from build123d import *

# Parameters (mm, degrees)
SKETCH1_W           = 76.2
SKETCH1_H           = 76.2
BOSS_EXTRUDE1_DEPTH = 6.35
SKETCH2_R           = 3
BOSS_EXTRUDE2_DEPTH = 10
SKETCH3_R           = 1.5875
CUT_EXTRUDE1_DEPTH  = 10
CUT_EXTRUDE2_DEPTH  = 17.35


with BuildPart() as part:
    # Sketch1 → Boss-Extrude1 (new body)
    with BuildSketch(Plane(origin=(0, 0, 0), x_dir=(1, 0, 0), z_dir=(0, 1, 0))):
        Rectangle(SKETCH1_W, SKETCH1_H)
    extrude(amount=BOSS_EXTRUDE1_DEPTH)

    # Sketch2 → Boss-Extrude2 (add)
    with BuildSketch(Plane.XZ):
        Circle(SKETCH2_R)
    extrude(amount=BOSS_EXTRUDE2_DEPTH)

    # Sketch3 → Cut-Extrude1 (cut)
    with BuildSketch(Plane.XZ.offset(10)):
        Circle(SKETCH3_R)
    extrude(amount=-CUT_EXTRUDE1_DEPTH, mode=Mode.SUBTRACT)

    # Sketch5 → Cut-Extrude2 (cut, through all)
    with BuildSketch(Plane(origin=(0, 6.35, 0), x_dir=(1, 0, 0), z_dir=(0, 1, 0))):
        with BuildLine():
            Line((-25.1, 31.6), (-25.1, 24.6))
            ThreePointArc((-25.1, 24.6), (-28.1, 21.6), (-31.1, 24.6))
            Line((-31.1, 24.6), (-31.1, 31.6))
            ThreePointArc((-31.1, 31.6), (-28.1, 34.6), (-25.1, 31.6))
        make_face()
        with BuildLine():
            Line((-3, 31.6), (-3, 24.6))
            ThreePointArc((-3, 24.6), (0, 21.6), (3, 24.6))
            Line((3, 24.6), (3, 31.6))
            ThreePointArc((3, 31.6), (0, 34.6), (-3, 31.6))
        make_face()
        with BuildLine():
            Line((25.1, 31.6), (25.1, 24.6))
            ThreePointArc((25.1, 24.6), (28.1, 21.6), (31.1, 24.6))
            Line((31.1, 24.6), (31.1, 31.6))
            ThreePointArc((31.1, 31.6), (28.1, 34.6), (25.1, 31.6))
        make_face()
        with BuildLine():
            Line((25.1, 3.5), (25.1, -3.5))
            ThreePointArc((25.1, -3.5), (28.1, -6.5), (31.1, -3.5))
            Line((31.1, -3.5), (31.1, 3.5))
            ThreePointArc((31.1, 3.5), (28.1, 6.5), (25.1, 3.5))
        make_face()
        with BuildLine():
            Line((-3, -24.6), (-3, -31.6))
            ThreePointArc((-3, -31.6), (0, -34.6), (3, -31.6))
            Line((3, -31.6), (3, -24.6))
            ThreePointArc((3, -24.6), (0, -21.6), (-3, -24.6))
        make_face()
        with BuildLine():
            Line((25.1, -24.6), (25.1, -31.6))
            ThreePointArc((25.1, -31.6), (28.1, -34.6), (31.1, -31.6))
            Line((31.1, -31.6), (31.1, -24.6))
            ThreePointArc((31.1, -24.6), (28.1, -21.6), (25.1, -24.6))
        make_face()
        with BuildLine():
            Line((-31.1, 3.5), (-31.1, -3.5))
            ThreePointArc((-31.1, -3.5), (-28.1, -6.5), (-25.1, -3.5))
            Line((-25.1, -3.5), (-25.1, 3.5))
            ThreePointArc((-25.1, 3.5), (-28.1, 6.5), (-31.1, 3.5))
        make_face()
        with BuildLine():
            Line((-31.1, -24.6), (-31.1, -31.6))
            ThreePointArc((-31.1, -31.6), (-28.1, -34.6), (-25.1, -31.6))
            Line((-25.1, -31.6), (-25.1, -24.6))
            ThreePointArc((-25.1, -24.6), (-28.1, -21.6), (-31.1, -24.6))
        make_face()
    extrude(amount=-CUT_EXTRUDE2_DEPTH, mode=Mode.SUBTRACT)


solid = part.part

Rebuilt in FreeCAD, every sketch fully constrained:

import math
import FreeCAD as App
import Part
import Sketcher

doc = App.newDocument("Part")
body = doc.addObject("PartDesign::Body", "Body")

# Sketch on XZ plane
sketch1 = body.newObject("Sketcher::SketchObject", "Sketch")
sketch1.AttachmentSupport = (doc.getObject("XZ_Plane"), [""])
sketch1.MapMode = "FlatFace"
sketch1.addGeometry([
    Part.LineSegment(App.Vector(-38, -38, 0), App.Vector(-38, 38, 0)),
    Part.LineSegment(App.Vector(-38, 38, 0), App.Vector(38, 38, 0)),
    Part.LineSegment(App.Vector(38, 38, 0), App.Vector(38, -38, 0)),
    Part.LineSegment(App.Vector(38, -38, 0), App.Vector(-38, -38, 0)),
], False)
sketch1.addConstraint([
    Sketcher.Constraint("Coincident", 0, 2, 1, 1),
    Sketcher.Constraint("Coincident", 1, 2, 2, 1),
    Sketcher.Constraint("Coincident", 2, 2, 3, 1),
    Sketcher.Constraint("Coincident", 3, 2, 0, 1),
    Sketcher.Constraint("Vertical", 0),
    Sketcher.Constraint("Horizontal", 1),
    Sketcher.Constraint("Vertical", 2),
    Sketcher.Constraint("Horizontal", 3),
    Sketcher.Constraint("Symmetric", 0, 2, 2, 2, -1, 1),
    Sketcher.Constraint("Equal", 3, 0),
    Sketcher.Constraint("DistanceX", 1, 1, 1, 2, 76.2),
])
pad1 = body.newObject("PartDesign::Pad", "Pad")
pad1.Profile = sketch1
pad1.Length = 6.35
pad1.Reversed = True

# Sketch on XZ plane
sketch2 = body.newObject("Sketcher::SketchObject", "Sketch001")
sketch2.AttachmentSupport = (doc.getObject("XZ_Plane"), [""])
sketch2.MapMode = "FlatFace"
sketch2.addGeometry(Part.Circle(App.Vector(0, 0, 0), App.Vector(0, 0, 1), 3), False)
sketch2.addConstraint([
    Sketcher.Constraint("Coincident", 0, 3, -1, 1),
    Sketcher.Constraint("Diameter", 0, 6.0),
])
pad2 = body.newObject("PartDesign::Pad", "Pad001")
pad2.Profile = sketch2
pad2.Length = 10

# Sketch on XZ plane
sketch3 = body.newObject("Sketcher::SketchObject", "Sketch002")
sketch3.AttachmentSupport = (doc.getObject("XZ_Plane"), [""])
sketch3.MapMode = "FlatFace"
sketch3.AttachmentOffset = App.Placement(App.Vector(0, 0, 10), App.Rotation())
sketch3.addGeometry(Part.Circle(App.Vector(0, 0, 0), App.Vector(0, 0, 1), 1.6), False)
sketch3.addConstraint([
    Sketcher.Constraint("Coincident", 0, 3, -1, 1),
    Sketcher.Constraint("Diameter", 0, 3.175),
])
pocket1 = body.newObject("PartDesign::Pocket", "Pocket")
pocket1.Profile = sketch3
pocket1.Length = 10

# Sketch on XZ plane
sketch4 = body.newObject("Sketcher::SketchObject", "Sketch003")
sketch4.AttachmentSupport = (doc.getObject("XZ_Plane"), [""])
sketch4.MapMode = "FlatFace"
sketch4.AttachmentOffset = App.Placement(App.Vector(0, 0, -6.35), App.Rotation())
sketch4.addGeometry([
    Part.LineSegment(App.Vector(-25.1, -24.6, 0), App.Vector(-25.1, -31.6, 0)),  # 0
    Part.ArcOfCircle(Part.Circle(App.Vector(-28.1, -31.6, 0), App.Vector(0, 0, 1), 3), math.radians(180), math.radians(360)),  # 1
    Part.LineSegment(App.Vector(-31.1, -31.6, 0), App.Vector(-31.1, -24.6, 0)),  # 2
    Part.ArcOfCircle(Part.Circle(App.Vector(-28.1, -24.6, 0), App.Vector(0, 0, 1), 3), math.radians(0), math.radians(180)),  # 3
    Part.LineSegment(App.Vector(-3, -31.6, 0), App.Vector(-3, -24.6, 0)),  # 4
    Part.ArcOfCircle(Part.Circle(App.Vector(0, -24.6, 0), App.Vector(0, 0, 1), 3), math.radians(0), math.radians(180)),  # 5
    Part.LineSegment(App.Vector(3, -24.6, 0), App.Vector(3, -31.6, 0)),  # 6
    Part.ArcOfCircle(Part.Circle(App.Vector(0, -31.6, 0), App.Vector(0, 0, 1), 3), math.radians(180), math.radians(360)),  # 7
    Part.LineSegment(App.Vector(25.1, -31.6, 0), App.Vector(25.1, -24.6, 0)),  # 8
    Part.ArcOfCircle(Part.Circle(App.Vector(28.1, -24.6, 0), App.Vector(0, 0, 1), 3), math.radians(0), math.radians(180)),  # 9
    Part.LineSegment(App.Vector(31.1, -24.6, 0), App.Vector(31.1, -31.6, 0)),  # 10
    Part.ArcOfCircle(Part.Circle(App.Vector(28.1, -31.6, 0), App.Vector(0, 0, 1), 3), math.radians(180), math.radians(360)),  # 11
    Part.LineSegment(App.Vector(25.1, -3.5, 0), App.Vector(25.1, 3.5, 0)),  # 12
    Part.ArcOfCircle(Part.Circle(App.Vector(28.1, 3.5, 0), App.Vector(0, 0, 1), 3), math.radians(0), math.radians(180)),  # 13
    Part.LineSegment(App.Vector(31.1, 3.5, 0), App.Vector(31.1, -3.5, 0)),  # 14
    Part.ArcOfCircle(Part.Circle(App.Vector(28.1, -3.5, 0), App.Vector(0, 0, 1), 3), math.radians(180), math.radians(360)),  # 15
    Part.LineSegment(App.Vector(-3, 24.6, 0), App.Vector(-3, 31.6, 0)),  # 16
    Part.ArcOfCircle(Part.Circle(App.Vector(0, 31.6, 0), App.Vector(0, 0, 1), 3), math.radians(0), math.radians(180)),  # 17
    Part.LineSegment(App.Vector(3, 31.6, 0), App.Vector(3, 24.6, 0)),  # 18
    Part.ArcOfCircle(Part.Circle(App.Vector(0, 24.6, 0), App.Vector(0, 0, 1), 3), math.radians(180), math.radians(360)),  # 19
    Part.LineSegment(App.Vector(25.1, 24.6, 0), App.Vector(25.1, 31.6, 0)),  # 20
    Part.ArcOfCircle(Part.Circle(App.Vector(28.1, 31.6, 0), App.Vector(0, 0, 1), 3), math.radians(0), math.radians(180)),  # 21
    Part.LineSegment(App.Vector(31.1, 31.6, 0), App.Vector(31.1, 24.6, 0)),  # 22
    Part.ArcOfCircle(Part.Circle(App.Vector(28.1, 24.6, 0), App.Vector(0, 0, 1), 3), math.radians(180), math.radians(360)),  # 23
    Part.LineSegment(App.Vector(-31.1, -3.5, 0), App.Vector(-31.1, 3.5, 0)),  # 24
    Part.ArcOfCircle(Part.Circle(App.Vector(-28.1, 3.5, 0), App.Vector(0, 0, 1), 3), math.radians(0), math.radians(180)),  # 25
    Part.LineSegment(App.Vector(-25.1, 3.5, 0), App.Vector(-25.1, -3.5, 0)),  # 26
    Part.ArcOfCircle(Part.Circle(App.Vector(-28.1, -3.5, 0), App.Vector(0, 0, 1), 3), math.radians(180), math.radians(360)),  # 27
    Part.LineSegment(App.Vector(-31.1, 24.6, 0), App.Vector(-31.1, 31.6, 0)),  # 28
    Part.ArcOfCircle(Part.Circle(App.Vector(-28.1, 31.6, 0), App.Vector(0, 0, 1), 3), math.radians(0), math.radians(180)),  # 29
    Part.LineSegment(App.Vector(-25.1, 31.6, 0), App.Vector(-25.1, 24.6, 0)),  # 30
    Part.ArcOfCircle(Part.Circle(App.Vector(-28.1, 24.6, 0), App.Vector(0, 0, 1), 3), math.radians(180), math.radians(360)),  # 31
], False)
sketch4.addConstraint([
    Sketcher.Constraint("Tangent", 0, 2, 1, 2),
    Sketcher.Constraint("Tangent", 1, 1, 2, 1),
    Sketcher.Constraint("Tangent", 2, 2, 3, 2),
    Sketcher.Constraint("Tangent", 3, 1, 0, 1),
    Sketcher.Constraint("Tangent", 4, 2, 5, 2),
    Sketcher.Constraint("Tangent", 5, 1, 6, 1),
    Sketcher.Constraint("Tangent", 6, 2, 7, 2),
    Sketcher.Constraint("Tangent", 7, 1, 4, 1),
    Sketcher.Constraint("Tangent", 8, 2, 9, 2),
    Sketcher.Constraint("Tangent", 9, 1, 10, 1),
    Sketcher.Constraint("Tangent", 10, 2, 11, 2),
    Sketcher.Constraint("Tangent", 11, 1, 8, 1),
    Sketcher.Constraint("Tangent", 12, 2, 13, 2),
    Sketcher.Constraint("Tangent", 13, 1, 14, 1),
    Sketcher.Constraint("Tangent", 14, 2, 15, 2),
    Sketcher.Constraint("Tangent", 15, 1, 12, 1),
    Sketcher.Constraint("Tangent", 16, 2, 17, 2),
    Sketcher.Constraint("Tangent", 17, 1, 18, 1),
    Sketcher.Constraint("Tangent", 18, 2, 19, 2),
    Sketcher.Constraint("Tangent", 19, 1, 16, 1),
    Sketcher.Constraint("Tangent", 20, 2, 21, 2),
    Sketcher.Constraint("Tangent", 21, 1, 22, 1),
    Sketcher.Constraint("Tangent", 22, 2, 23, 2),
    Sketcher.Constraint("Tangent", 23, 1, 20, 1),
    Sketcher.Constraint("Tangent", 24, 2, 25, 2),
    Sketcher.Constraint("Tangent", 25, 1, 26, 1),
    Sketcher.Constraint("Tangent", 26, 2, 27, 2),
    Sketcher.Constraint("Tangent", 27, 1, 24, 1),
    Sketcher.Constraint("Tangent", 28, 2, 29, 2),
    Sketcher.Constraint("Tangent", 29, 1, 30, 1),
    Sketcher.Constraint("Tangent", 30, 2, 31, 2),
    Sketcher.Constraint("Tangent", 31, 1, 28, 1),
    Sketcher.Constraint("Vertical", 0),
    Sketcher.Constraint("Vertical", 2),
    Sketcher.Constraint("Vertical", 4),
    Sketcher.Constraint("Vertical", 6),
    Sketcher.Constraint("Vertical", 8),
    Sketcher.Constraint("Vertical", 10),
    Sketcher.Constraint("Vertical", 12),
    Sketcher.Constraint("Vertical", 14),
    Sketcher.Constraint("Vertical", 16),
    Sketcher.Constraint("Vertical", 18),
    Sketcher.Constraint("Vertical", 20),
    Sketcher.Constraint("Vertical", 22),
    Sketcher.Constraint("Vertical", 24),
    Sketcher.Constraint("Vertical", 26),
    Sketcher.Constraint("Vertical", 28),
    Sketcher.Constraint("Vertical", 30),
    Sketcher.Constraint("Equal", 3, 5),
    Sketcher.Constraint("Equal", 7, 9),
    Sketcher.Constraint("Equal", 11, 13),
    Sketcher.Constraint("Equal", 15, 17),
    Sketcher.Constraint("Equal", 19, 21),
    Sketcher.Constraint("Equal", 23, 25),
    Sketcher.Constraint("Equal", 27, 29),
    Sketcher.Constraint("Symmetric", 7, 3, 17, 3, -1, 1),
    Sketcher.Constraint("Symmetric", 1, 3, 21, 3, -1, 1),
    Sketcher.Constraint("Symmetric", 15, 3, 25, 3, -1, 1),
    Sketcher.Constraint("Symmetric", 11, 3, 29, 3, -1, 1),
    Sketcher.Constraint("Symmetric", 3, 3, 9, 3, -2),
    Sketcher.Constraint("Symmetric", 5, 3, 19, 3, -1),
    Sketcher.Constraint("Horizontal", 3, 3, 5, 3),
    Sketcher.Constraint("Horizontal", 1, 3, 7, 3),
    Sketcher.Constraint("Horizontal", 7, 3, 11, 3),
    Sketcher.Constraint("Horizontal", 19, 3, 23, 3),
    Sketcher.Constraint("Horizontal", 13, 3, 25, 3),
    Sketcher.Constraint("Horizontal", 15, 3, 27, 3),
    Sketcher.Constraint("Horizontal", 23, 3, 31, 3),
    Sketcher.Constraint("Vertical", 11, 3, 13, 3),
    Sketcher.Constraint("Equal", 10, 12),
    Sketcher.Constraint("Radius", 1, 3.0),
    Sketcher.Constraint("DistanceY", 0, 2, 0, 1, 7.0),
    Sketcher.Constraint("DistanceX", 1, 3, -1, 1, 28.1),
    Sketcher.Constraint("DistanceY", 1, 3, -1, 1, 31.6),
])
pocket2 = body.newObject("PartDesign::Pocket", "Pocket001")
pocket2.Profile = sketch4
pocket2.Type = "ThroughAll"
pocket2.Reversed = True

doc.recompute()
